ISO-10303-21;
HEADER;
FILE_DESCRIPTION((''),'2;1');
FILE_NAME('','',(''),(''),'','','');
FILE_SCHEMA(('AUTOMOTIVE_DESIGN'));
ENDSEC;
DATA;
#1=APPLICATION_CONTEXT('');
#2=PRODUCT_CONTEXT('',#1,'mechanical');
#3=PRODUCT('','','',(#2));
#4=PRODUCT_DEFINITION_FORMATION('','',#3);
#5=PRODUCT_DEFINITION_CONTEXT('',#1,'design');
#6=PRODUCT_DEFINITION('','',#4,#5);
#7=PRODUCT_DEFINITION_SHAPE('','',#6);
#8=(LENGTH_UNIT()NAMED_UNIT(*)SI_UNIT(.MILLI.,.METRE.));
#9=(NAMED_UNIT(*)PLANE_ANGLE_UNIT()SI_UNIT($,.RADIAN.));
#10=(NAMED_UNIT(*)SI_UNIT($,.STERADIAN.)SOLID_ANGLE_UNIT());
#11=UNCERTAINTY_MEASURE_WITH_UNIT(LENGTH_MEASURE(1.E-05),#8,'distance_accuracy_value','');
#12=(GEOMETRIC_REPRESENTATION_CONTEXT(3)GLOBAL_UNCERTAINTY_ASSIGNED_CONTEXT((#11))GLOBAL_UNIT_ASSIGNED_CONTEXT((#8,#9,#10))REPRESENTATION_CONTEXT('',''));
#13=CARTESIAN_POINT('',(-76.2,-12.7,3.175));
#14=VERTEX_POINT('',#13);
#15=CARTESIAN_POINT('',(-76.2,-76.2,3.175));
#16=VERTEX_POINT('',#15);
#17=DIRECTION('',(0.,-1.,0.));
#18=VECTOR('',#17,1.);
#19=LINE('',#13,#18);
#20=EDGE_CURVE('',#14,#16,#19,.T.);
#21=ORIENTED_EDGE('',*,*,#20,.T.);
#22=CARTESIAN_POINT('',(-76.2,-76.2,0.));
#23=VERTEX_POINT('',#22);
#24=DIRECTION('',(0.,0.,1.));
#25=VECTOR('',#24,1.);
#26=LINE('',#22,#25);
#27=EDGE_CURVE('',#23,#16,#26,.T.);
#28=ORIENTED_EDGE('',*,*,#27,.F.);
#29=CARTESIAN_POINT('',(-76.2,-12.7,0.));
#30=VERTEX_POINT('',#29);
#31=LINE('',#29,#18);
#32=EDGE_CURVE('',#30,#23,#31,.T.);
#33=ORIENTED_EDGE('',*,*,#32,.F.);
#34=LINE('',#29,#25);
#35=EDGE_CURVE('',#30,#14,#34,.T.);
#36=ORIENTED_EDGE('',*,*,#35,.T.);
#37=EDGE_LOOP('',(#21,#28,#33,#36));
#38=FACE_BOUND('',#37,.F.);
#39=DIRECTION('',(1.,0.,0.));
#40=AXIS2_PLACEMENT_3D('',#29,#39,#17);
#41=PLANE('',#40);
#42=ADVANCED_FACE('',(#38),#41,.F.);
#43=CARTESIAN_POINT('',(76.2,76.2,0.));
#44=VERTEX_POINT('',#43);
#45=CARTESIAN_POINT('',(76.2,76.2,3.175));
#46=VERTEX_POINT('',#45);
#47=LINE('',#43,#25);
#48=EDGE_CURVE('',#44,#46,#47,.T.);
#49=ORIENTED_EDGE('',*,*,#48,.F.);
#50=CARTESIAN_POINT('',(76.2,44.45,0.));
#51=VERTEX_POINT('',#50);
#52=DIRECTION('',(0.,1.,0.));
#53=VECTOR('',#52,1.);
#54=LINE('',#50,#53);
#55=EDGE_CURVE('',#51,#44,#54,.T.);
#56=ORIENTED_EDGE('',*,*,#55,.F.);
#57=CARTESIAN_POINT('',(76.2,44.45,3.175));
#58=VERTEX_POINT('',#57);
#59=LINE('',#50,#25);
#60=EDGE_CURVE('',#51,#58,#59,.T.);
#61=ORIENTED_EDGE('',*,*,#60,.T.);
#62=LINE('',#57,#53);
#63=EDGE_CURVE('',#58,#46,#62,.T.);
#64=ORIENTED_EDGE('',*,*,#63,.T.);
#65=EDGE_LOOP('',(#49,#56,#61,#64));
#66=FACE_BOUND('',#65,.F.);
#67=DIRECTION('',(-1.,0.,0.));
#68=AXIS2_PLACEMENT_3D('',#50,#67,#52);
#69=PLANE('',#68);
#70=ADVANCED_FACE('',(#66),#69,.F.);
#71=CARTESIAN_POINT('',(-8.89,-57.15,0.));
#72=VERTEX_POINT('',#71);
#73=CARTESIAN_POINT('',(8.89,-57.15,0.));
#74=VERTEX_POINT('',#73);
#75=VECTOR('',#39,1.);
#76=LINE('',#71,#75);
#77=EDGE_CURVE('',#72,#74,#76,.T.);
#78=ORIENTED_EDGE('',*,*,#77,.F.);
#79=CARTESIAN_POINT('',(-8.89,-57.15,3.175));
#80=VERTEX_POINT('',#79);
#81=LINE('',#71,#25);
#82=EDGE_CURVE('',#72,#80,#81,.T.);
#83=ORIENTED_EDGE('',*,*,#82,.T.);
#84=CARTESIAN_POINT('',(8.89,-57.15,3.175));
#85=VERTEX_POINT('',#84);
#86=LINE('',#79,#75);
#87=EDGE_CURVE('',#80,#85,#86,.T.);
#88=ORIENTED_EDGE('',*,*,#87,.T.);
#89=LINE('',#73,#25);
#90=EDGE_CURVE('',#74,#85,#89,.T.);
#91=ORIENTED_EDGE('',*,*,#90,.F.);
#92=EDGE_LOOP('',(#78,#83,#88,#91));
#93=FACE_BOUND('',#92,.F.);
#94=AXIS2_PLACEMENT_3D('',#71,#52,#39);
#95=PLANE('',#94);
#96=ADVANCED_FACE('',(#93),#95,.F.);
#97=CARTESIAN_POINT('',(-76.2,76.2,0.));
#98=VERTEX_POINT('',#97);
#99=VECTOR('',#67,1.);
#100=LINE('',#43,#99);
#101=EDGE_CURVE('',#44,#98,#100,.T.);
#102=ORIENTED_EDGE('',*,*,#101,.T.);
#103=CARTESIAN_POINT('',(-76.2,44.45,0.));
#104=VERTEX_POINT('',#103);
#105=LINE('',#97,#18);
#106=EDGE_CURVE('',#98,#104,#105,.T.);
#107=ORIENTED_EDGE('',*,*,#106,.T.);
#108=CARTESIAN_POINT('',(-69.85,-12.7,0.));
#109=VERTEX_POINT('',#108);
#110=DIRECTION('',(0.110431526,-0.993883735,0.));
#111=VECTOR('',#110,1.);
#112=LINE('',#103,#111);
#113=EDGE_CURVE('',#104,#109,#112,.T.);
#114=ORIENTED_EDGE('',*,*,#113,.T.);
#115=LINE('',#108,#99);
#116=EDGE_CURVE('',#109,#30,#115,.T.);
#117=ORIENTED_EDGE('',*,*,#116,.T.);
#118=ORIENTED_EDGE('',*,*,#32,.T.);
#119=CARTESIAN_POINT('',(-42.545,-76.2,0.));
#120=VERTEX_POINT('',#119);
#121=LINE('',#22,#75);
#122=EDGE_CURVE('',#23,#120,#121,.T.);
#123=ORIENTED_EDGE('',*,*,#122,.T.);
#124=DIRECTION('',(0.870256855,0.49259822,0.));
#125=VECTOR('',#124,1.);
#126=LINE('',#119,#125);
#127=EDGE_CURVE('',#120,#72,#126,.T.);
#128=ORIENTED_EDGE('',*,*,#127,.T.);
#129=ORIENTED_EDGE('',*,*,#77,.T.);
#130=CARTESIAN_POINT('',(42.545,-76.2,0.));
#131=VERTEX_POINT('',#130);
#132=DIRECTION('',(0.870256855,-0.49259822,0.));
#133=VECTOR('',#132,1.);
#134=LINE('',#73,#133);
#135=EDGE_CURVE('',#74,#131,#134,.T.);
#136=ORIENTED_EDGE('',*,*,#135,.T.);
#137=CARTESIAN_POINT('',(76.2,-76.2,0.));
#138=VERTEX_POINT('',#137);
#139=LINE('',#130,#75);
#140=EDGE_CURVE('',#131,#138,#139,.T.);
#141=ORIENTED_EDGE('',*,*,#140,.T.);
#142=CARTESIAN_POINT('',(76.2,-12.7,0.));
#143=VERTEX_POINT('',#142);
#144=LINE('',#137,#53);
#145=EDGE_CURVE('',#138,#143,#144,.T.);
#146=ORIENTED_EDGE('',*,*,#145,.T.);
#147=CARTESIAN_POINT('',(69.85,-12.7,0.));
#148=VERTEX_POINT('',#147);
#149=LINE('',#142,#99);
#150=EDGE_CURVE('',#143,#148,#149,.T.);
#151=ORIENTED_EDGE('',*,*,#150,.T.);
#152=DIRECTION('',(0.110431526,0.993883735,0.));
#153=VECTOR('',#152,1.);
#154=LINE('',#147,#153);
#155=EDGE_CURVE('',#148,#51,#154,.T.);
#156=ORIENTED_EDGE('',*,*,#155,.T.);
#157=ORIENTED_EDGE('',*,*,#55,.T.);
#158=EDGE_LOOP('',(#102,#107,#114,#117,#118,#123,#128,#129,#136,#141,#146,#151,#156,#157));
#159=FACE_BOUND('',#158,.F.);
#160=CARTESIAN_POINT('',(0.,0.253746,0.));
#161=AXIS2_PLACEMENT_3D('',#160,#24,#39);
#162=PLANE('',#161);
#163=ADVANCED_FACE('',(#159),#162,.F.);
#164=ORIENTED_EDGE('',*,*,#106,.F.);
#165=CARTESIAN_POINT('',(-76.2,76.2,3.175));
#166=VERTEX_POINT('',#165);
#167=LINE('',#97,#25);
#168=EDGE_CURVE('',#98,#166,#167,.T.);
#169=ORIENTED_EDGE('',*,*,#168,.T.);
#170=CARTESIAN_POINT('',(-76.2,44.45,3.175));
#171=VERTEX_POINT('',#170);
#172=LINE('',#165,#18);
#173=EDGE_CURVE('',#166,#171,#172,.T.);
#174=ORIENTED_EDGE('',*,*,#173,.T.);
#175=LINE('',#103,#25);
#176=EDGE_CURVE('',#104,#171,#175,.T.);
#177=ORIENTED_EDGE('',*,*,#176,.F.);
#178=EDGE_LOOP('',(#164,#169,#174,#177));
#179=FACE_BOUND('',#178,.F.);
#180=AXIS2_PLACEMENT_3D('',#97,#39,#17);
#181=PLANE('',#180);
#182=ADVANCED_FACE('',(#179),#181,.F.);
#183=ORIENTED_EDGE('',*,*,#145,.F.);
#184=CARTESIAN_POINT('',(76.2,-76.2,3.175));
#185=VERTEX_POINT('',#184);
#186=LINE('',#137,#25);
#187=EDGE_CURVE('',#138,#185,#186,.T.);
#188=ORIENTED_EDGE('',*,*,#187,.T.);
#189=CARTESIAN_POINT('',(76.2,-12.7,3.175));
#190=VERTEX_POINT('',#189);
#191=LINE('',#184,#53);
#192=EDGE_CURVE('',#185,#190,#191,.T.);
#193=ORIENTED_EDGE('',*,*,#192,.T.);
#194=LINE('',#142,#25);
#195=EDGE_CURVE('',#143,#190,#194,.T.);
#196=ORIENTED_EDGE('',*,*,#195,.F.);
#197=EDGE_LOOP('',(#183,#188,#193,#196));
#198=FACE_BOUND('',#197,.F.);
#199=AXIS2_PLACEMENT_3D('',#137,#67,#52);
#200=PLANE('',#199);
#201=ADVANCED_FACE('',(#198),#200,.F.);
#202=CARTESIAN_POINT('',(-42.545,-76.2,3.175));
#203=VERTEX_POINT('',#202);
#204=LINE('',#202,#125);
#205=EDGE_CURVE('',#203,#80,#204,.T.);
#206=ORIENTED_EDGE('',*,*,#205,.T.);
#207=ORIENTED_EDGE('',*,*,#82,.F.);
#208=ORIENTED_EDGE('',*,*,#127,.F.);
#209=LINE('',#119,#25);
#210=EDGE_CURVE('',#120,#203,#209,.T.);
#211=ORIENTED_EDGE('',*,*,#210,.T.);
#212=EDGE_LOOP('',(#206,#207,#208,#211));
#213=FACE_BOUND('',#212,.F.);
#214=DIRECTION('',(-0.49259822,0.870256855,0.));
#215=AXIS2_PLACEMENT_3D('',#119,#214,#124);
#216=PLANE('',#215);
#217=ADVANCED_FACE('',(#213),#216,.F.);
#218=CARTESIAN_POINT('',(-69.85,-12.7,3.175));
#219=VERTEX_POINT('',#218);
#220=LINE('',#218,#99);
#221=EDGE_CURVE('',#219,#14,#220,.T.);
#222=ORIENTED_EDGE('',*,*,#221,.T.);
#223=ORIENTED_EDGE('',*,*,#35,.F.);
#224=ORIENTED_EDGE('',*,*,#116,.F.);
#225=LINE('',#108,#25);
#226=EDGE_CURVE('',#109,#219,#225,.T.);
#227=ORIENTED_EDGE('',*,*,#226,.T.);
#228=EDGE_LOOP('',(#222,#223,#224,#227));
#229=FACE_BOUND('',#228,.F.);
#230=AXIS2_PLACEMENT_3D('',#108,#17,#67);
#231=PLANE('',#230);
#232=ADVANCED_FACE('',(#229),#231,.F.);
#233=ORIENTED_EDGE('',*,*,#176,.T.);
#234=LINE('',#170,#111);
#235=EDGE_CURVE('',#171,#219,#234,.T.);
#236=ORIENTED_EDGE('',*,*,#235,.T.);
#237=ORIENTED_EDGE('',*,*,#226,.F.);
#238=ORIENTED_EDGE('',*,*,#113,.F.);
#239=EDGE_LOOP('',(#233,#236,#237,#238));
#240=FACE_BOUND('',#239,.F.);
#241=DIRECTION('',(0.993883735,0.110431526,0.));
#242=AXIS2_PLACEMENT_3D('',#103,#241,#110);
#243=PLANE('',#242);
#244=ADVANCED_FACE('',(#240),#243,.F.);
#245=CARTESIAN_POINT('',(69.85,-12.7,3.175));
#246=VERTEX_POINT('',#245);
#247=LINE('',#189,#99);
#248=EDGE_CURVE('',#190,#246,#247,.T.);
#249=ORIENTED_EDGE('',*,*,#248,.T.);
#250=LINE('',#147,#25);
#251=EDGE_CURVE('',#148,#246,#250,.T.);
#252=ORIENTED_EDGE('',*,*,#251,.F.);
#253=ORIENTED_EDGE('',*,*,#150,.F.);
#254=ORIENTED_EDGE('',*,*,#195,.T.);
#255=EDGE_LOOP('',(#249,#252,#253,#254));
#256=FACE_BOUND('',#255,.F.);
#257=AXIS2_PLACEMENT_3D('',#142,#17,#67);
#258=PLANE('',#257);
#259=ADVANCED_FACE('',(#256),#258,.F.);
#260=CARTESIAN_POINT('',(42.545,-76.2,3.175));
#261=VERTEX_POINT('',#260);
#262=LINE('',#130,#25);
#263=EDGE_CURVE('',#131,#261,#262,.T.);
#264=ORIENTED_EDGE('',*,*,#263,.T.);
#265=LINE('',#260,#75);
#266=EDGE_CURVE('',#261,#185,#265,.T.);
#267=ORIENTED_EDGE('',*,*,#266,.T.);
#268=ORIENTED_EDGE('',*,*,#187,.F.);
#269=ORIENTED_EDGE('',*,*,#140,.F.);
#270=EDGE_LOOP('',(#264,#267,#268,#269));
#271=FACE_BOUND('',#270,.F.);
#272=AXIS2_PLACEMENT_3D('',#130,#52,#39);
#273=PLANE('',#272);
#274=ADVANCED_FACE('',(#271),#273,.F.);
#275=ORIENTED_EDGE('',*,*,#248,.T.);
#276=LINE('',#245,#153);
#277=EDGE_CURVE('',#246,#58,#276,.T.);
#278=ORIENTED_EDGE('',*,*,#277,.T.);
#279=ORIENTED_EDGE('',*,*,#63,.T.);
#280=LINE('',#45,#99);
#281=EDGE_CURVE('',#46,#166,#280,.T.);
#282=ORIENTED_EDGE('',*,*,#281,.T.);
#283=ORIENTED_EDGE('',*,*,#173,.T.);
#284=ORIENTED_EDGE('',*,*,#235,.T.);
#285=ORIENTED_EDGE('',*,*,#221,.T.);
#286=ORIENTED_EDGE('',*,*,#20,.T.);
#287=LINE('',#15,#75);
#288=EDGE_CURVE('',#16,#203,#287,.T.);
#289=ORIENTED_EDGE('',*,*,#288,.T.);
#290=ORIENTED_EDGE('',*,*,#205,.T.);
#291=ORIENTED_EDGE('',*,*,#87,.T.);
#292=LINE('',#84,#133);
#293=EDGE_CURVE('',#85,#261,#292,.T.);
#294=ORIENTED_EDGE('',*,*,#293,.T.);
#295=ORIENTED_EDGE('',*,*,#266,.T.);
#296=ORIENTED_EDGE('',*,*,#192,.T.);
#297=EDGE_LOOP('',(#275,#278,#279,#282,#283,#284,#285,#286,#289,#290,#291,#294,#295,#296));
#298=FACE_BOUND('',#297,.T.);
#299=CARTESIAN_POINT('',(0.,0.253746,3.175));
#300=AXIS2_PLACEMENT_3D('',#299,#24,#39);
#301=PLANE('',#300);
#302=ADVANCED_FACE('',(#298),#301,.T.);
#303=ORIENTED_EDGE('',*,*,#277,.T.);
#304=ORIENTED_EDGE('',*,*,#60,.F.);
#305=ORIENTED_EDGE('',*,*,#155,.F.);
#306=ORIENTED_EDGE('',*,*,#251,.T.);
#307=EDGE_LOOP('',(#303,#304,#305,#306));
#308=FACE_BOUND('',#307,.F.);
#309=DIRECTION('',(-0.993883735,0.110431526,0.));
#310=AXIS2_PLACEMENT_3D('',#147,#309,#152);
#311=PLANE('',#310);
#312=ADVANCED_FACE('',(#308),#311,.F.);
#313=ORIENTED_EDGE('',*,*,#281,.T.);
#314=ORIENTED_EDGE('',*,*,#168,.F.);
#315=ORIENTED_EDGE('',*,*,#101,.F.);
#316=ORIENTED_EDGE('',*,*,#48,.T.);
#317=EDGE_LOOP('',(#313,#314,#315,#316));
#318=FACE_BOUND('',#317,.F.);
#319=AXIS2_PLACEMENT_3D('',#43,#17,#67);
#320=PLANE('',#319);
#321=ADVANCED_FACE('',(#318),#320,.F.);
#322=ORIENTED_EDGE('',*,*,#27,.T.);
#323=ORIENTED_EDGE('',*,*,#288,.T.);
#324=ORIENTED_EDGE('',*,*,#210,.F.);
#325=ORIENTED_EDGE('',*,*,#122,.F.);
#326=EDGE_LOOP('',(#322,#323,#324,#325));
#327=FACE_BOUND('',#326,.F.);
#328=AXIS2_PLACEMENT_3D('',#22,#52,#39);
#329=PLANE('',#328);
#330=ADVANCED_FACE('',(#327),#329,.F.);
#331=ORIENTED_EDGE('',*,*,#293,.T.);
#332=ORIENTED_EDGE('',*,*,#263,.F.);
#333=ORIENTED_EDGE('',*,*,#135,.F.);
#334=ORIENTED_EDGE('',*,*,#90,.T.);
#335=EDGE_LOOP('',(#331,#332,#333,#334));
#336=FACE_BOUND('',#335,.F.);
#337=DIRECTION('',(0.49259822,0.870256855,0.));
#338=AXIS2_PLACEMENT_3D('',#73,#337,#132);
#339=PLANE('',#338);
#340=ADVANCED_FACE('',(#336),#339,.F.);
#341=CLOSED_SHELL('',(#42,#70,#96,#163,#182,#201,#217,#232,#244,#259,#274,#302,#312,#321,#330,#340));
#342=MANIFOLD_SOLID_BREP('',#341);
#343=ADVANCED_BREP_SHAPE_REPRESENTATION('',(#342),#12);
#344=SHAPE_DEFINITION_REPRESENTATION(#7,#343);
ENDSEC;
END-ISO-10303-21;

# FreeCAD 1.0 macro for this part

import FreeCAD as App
import Part
import Sketcher

V = App.Vector
Q = App.Units.Quantity

doc = App.newDocument("Part")
body = doc.addObject("PartDesign::Body", "Body")

# Sketch on XY plane
sketch1 = body.newObject("Sketcher::SketchObject", "Sketch")
sketch1.AttachmentSupport = (doc.getObject("XY_Plane"), [""])
sketch1.MapMode = "FlatFace"
sketch1.addGeometry(Part.LineSegment(V(43, -76, 0), V(76, -76, 0)), False)
sketch1.addGeometry(Part.LineSegment(V(76, -76, 0), V(76, -13, 0)), False)
sketch1.addGeometry(Part.LineSegment(V(76, -13, 0), V(70, -13, 0)), False)
sketch1.addGeometry(Part.LineSegment(V(70, -13, 0), V(76, 44, 0)), False)
sketch1.addGeometry(Part.LineSegment(V(76, 44, 0), V(76, 76, 0)), False)
sketch1.addGeometry(Part.LineSegment(V(76, 76, 0), V(-76, 76, 0)), False)
sketch1.addGeometry(Part.LineSegment(V(-76, 76, 0), V(-76, 44, 0)), False)
sketch1.addGeometry(Part.LineSegment(V(-76, 44, 0), V(-70, -13, 0)), False)
sketch1.addGeometry(Part.LineSegment(V(-70, -13, 0), V(-76, -13, 0)), False)
sketch1.addGeometry(Part.LineSegment(V(-76, -13, 0), V(-76, -76, 0)), False)
sketch1.addGeometry(Part.LineSegment(V(-76, -76, 0), V(-43, -76, 0)), False)
sketch1.addGeometry(Part.LineSegment(V(-43, -76, 0), V(-9, -57, 0)), False)
sketch1.addGeometry(Part.LineSegment(V(-9, -57, 0), V(9, -57, 0)), False)
sketch1.addGeometry(Part.LineSegment(V(9, -57, 0), V(43, -76, 0)), False)
sketch1.addConstraint(Sketcher.Constraint("Coincident", 0, 2, 1, 1))
sketch1.addConstraint(Sketcher.Constraint("Coincident", 1, 2, 2, 1))
sketch1.addConstraint(Sketcher.Constraint("Coincident", 2, 2, 3, 1))
sketch1.addConstraint(Sketcher.Constraint("Coincident", 3, 2, 4, 1))
sketch1.addConstraint(Sketcher.Constraint("Coincident", 4, 2, 5, 1))
sketch1.addConstraint(Sketcher.Constraint("Coincident", 5, 2, 6, 1))
sketch1.addConstraint(Sketcher.Constraint("Coincident", 6, 2, 7, 1))
sketch1.addConstraint(Sketcher.Constraint("Coincident", 7, 2, 8, 1))
sketch1.addConstraint(Sketcher.Constraint("Coincident", 8, 2, 9, 1))
sketch1.addConstraint(Sketcher.Constraint("Coincident", 9, 2, 10, 1))
sketch1.addConstraint(Sketcher.Constraint("Coincident", 10, 2, 11, 1))
sketch1.addConstraint(Sketcher.Constraint("Coincident", 11, 2, 12, 1))
sketch1.addConstraint(Sketcher.Constraint("Coincident", 12, 2, 13, 1))
sketch1.addConstraint(Sketcher.Constraint("Coincident", 13, 2, 0, 1))
sketch1.addConstraint(Sketcher.Constraint("Horizontal", 0))
sketch1.addConstraint(Sketcher.Constraint("Vertical", 1))
sketch1.addConstraint(Sketcher.Constraint("Horizontal", 2))
sketch1.addConstraint(Sketcher.Constraint("Vertical", 4))
sketch1.addConstraint(Sketcher.Constraint("Horizontal", 5))
sketch1.addConstraint(Sketcher.Constraint("Vertical", 6))
sketch1.addConstraint(Sketcher.Constraint("Horizontal", 8))
sketch1.addConstraint(Sketcher.Constraint("Vertical", 9))
sketch1.addConstraint(Sketcher.Constraint("Horizontal", 10))
sketch1.addConstraint(Sketcher.Constraint("Horizontal", 12))
sketch1.addConstraint(Sketcher.Constraint("Symmetric", 0, 2, 5, 2, -1, 1))
sketch1.addConstraint(Sketcher.Constraint("Symmetric", 4, 2, 9, 2, -1, 1))
sketch1.addConstraint(Sketcher.Constraint("Symmetric", 3, 2, 6, 2, -2))
sketch1.addConstraint(Sketcher.Constraint("Symmetric", 2, 2, 7, 2, -2))
sketch1.addConstraint(Sketcher.Constraint("Equal", 0, 10))
sketch1.addConstraint(Sketcher.Constraint("Equal", 11, 13))
sketch1.addConstraint(Sketcher.Constraint("DistanceX", 5, 2, 5, 1, Q("6 in")))
sketch1.addConstraint(Sketcher.Constraint("DistanceX", 12, 1, 12, 2, Q("0.7 in")))
sketch1.addConstraint(Sketcher.Constraint("DistanceY", 1, 1, 1, 2, Q("2.5 in")))
sketch1.addConstraint(Sketcher.Constraint("DistanceY", 0, 2, -1, 1, Q("3 in")))
sketch1.addConstraint(Sketcher.Constraint("DistanceX", 2, 2, 2, 1, Q("0.25 in")))
sketch1.addConstraint(Sketcher.Constraint("DistanceY", 4, 1, 4, 2, Q("1.25 in")))
sketch1.addConstraint(Sketcher.Constraint("DistanceX", 0, 1, 0, 2, Q("1.325 in")))
sketch1.addConstraint(Sketcher.Constraint("DistanceY", 11, 2, -1, 1, Q("2.25 in")))
pad1 = body.newObject("PartDesign::Pad", "Pad")
pad1.Profile = sketch1
pad1.Length = Q("0.125 in")

doc.recompute()
